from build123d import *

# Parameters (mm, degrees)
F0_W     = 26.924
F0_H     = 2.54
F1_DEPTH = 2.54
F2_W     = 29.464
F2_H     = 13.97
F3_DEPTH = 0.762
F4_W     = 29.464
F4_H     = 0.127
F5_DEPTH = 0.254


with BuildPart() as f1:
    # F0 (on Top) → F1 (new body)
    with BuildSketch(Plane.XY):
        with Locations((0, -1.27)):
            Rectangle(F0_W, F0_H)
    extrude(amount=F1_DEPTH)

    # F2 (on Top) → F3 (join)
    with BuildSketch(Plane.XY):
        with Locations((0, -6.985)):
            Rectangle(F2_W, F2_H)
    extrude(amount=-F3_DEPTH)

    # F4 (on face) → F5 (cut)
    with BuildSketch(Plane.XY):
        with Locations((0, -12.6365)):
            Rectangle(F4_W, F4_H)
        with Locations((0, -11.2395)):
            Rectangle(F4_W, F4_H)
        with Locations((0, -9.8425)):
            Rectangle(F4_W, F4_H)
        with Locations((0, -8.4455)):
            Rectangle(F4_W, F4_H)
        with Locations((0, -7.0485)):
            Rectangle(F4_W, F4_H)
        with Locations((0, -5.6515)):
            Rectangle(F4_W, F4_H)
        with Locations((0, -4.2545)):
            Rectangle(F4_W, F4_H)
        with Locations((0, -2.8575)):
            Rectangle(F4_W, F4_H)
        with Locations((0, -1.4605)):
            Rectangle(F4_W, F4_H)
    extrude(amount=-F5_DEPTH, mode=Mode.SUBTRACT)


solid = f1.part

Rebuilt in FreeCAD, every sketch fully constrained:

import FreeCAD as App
import Part
import Sketcher
from FreeCAD import Vector
Q = App.Units.Quantity


def add_polygon(sketch, points):
    """Adds a closed chain of lines whose ends are joined by coincident constraints."""
    first, n = sketch.GeometryCount, len(points)
    for a, b in zip(points, points[1:] + points[:1]):
        sketch.addGeometry(Part.LineSegment(App.Vector(*a, 0), App.Vector(*b, 0)), False)
    for i in range(n):
        sketch.addConstraint(Sketcher.Constraint("Coincident", first + i, 2, first + (i + 1) % n, 1))

doc = App.newDocument("Part")
body = doc.addObject("PartDesign::Body", "Body")

# Sketch on XY plane
sketch1 = body.newObject("Sketcher::SketchObject", "Sketch")
sketch1.AttachmentSupport = (doc.getObject("XY_Plane"), [""])
sketch1.MapMode = "FlatFace"
add_polygon(sketch1, [(-13.5, 0), (-13.5, -2.5), (13.5, -2.5), (13.5, 0)])  # lines 0-3
sketch1.addConstraint([
    Sketcher.Constraint("Vertical", 0),
    Sketcher.Constraint("Horizontal", 1),
    Sketcher.Constraint("Vertical", 2),
    Sketcher.Constraint("Horizontal", 3),
    Sketcher.Constraint("Symmetric", 2, 2, 3, 2, -1, 1),
    Sketcher.Constraint("DistanceY", 0, 2, 0, 1, Q("0.1 in")),
    Sketcher.Constraint("DistanceX", 1, 1, 1, 2, Q("1.06 in")),
])
pad1 = body.newObject("PartDesign::Pad", "Pad")
pad1.Profile = sketch1
pad1.Length = Q("0.1 in")

# Sketch on XY plane
sketch2 = body.newObject("Sketcher::SketchObject", "Sketch001")
sketch2.AttachmentSupport = (doc.getObject("XY_Plane"), [""])
sketch2.MapMode = "FlatFace"
add_polygon(sketch2, [(-15, 0), (-15, -14), (15, -14), (15, 0)])  # lines 0-3
sketch2.addConstraint([
    Sketcher.Constraint("Vertical", 0),
    Sketcher.Constraint("Horizontal", 1),
    Sketcher.Constraint("Vertical", 2),
    Sketcher.Constraint("Horizontal", 3),
    Sketcher.Constraint("Symmetric", 2, 2, 3, 2, -1, 1),
    Sketcher.Constraint("DistanceX", 1, 1, 1, 2, Q("1.16 in")),
    Sketcher.Constraint("DistanceY", 0, 2, 0, 1, Q("0.55 in")),
])
pad2 = body.newObject("PartDesign::Pad", "Pad001")
pad2.Profile = sketch2
pad2.Length = Q("0.03 in")
pad2.Reversed = True

# Sketch on XY plane
sketch3 = body.newObject("Sketcher::SketchObject", "Sketch002")
sketch3.AttachmentSupport = (doc.getObject("XY_Plane"), [""])
sketch3.MapMode = "FlatFace"
add_polygon(sketch3, [(-14.73, -12.57), (-14.73, -12.7), (14.73, -12.7), (14.73, -12.57)])  # lines 0-3
add_polygon(sketch3, [(-14.73, -11.18), (-14.73, -11.3), (14.73, -11.3), (14.73, -11.18)])  # lines 4-7
add_polygon(sketch3, [(-14.73, -9.78), (-14.73, -9.91), (14.73, -9.91), (14.73, -9.78)])  # lines 8-11
add_polygon(sketch3, [(-14.73, -8.38), (-14.73, -8.51), (14.73, -8.51), (14.73, -8.38)])  # lines 12-15
add_polygon(sketch3, [(-14.73, -6.99), (-14.73, -7.11), (14.73, -7.11), (14.73, -6.99)])  # lines 16-19
add_polygon(sketch3, [(-14.73, -5.59), (-14.73, -5.71), (14.73, -5.71), (14.73, -5.59)])  # lines 20-23
add_polygon(sketch3, [(-14.73, -4.19), (-14.73, -4.32), (14.73, -4.32), (14.73, -4.19)])  # lines 24-27
add_polygon(sketch3, [(-14.73, -2.79), (-14.73, -2.92), (14.73, -2.92), (14.73, -2.79)])  # lines 28-31
add_polygon(sketch3, [(-14.73, -1.4), (-14.73, -1.52), (14.73, -1.52), (14.73, -1.4)])  # lines 32-35
sketch3.addConstraint([
    Sketcher.Constraint("Vertical", 0),
    Sketcher.Constraint("Horizontal", 1),
    Sketcher.Constraint("Vertical", 2),
    Sketcher.Constraint("Horizontal", 3),
    Sketcher.Constraint("Vertical", 4),
    Sketcher.Constraint("Horizontal", 5),
    Sketcher.Constraint("Vertical", 6),
    Sketcher.Constraint("Horizontal", 7),
    Sketcher.Constraint("Vertical", 8),
    Sketcher.Constraint("Horizontal", 9),
    Sketcher.Constraint("Vertical", 10),
    Sketcher.Constraint("Horizontal", 11),
    Sketcher.Constraint("Vertical", 12),
    Sketcher.Constraint("Horizontal", 13),
    Sketcher.Constraint("Vertical", 14),
    Sketcher.Constraint("Horizontal", 15),
    Sketcher.Constraint("Vertical", 16),
    Sketcher.Constraint("Horizontal", 17),
    Sketcher.Constraint("Vertical", 18),
    Sketcher.Constraint("Horizontal", 19),
    Sketcher.Constraint("Vertical", 20),
    Sketcher.Constraint("Horizontal", 21),
    Sketcher.Constraint("Vertical", 22),
    Sketcher.Constraint("Horizontal", 23),
    Sketcher.Constraint("Vertical", 24),
    Sketcher.Constraint("Horizontal", 25),
    Sketcher.Constraint("Vertical", 26),
    Sketcher.Constraint("Horizontal", 27),
    Sketcher.Constraint("Vertical", 28),
    Sketcher.Constraint("Horizontal", 29),
    Sketcher.Constraint("Vertical", 30),
    Sketcher.Constraint("Horizontal", 31),
    Sketcher.Constraint("Vertical", 32),
    Sketcher.Constraint("Horizontal", 33),
    Sketcher.Constraint("Vertical", 34),
    Sketcher.Constraint("Horizontal", 35),
    Sketcher.Constraint("Vertical", 3, 2, 4, 2),
    Sketcher.Constraint("Vertical", 2, 2, 5, 2),
    Sketcher.Constraint("Vertical", 7, 2, 8, 2),
    Sketcher.Constraint("Vertical", 6, 2, 9, 2),
    Sketcher.Constraint("Vertical", 11, 2, 12, 2),
    Sketcher.Constraint("Vertical", 10, 2, 13, 2),
    Sketcher.Constraint("Vertical", 15, 2, 16, 2),
    Sketcher.Constraint("Vertical", 14, 2, 17, 2),
    Sketcher.Constraint("Vertical", 19, 2, 20, 2),
    Sketcher.Constraint("Vertical", 18, 2, 21, 2),
    Sketcher.Constraint("Vertical", 23, 2, 24, 2),
    Sketcher.Constraint("Vertical", 22, 2, 25, 2),
    Sketcher.Constraint("Vertical", 27, 2, 28, 2),
    Sketcher.Constraint("Vertical", 26, 2, 29, 2),
    Sketcher.Constraint("Vertical", 31, 2, 32, 2),
    Sketcher.Constraint("Vertical", 30, 2, 33, 2),
    Sketcher.Constraint("Equal", 2, 4),
    Sketcher.Constraint("Equal", 6, 8),
    Sketcher.Constraint("Equal", 10, 12),
    Sketcher.Constraint("Equal", 14, 16),
    Sketcher.Constraint("Equal", 18, 20),
    Sketcher.Constraint("Equal", 22, 24),
    Sketcher.Constraint("Equal", 26, 28),
    Sketcher.Constraint("Equal", 30, 32),
    Sketcher.Constraint("DistanceX", 1, 1, 1, 2, Q("1.16 in")),
    Sketcher.Constraint("DistanceY", 0, 2, -1, 1, Q("0.5 in")),
    Sketcher.Constraint("DistanceY", 0, 2, 0, 1, Q("0.005 in")),
    Sketcher.Constraint("DistanceX", 0, 2, -1, 1, Q("0.58 in")),
    Sketcher.Constraint("DistanceY", 6, 2, -1, 1, Q("0.44 in")),
    Sketcher.Constraint("DistanceY", 8, 2, -1, 1, Q("0.39 in")),
    Sketcher.Constraint("DistanceY", 14, 2, -1, 1, Q("0.33 in")),
    Sketcher.Constraint("DistanceY", 16, 2, -1, 1, Q("0.28 in")),
    Sketcher.Constraint("DistanceY", 22, 2, -1, 1, Q("0.22 in")),
    Sketcher.Constraint("DistanceY", 24, 2, -1, 1, Q("0.17 in")),
    Sketcher.Constraint("DistanceY", 30, 2, -1, 1, Q("0.11 in")),
    Sketcher.Constraint("DistanceY", 32, 2, -1, 1, Q("0.06 in")),
])
pocket1 = body.newObject("PartDesign::Pocket", "Pocket")
pocket1.Profile = sketch3
pocket1.Length = Q("0.01 in")

doc.recompute()
